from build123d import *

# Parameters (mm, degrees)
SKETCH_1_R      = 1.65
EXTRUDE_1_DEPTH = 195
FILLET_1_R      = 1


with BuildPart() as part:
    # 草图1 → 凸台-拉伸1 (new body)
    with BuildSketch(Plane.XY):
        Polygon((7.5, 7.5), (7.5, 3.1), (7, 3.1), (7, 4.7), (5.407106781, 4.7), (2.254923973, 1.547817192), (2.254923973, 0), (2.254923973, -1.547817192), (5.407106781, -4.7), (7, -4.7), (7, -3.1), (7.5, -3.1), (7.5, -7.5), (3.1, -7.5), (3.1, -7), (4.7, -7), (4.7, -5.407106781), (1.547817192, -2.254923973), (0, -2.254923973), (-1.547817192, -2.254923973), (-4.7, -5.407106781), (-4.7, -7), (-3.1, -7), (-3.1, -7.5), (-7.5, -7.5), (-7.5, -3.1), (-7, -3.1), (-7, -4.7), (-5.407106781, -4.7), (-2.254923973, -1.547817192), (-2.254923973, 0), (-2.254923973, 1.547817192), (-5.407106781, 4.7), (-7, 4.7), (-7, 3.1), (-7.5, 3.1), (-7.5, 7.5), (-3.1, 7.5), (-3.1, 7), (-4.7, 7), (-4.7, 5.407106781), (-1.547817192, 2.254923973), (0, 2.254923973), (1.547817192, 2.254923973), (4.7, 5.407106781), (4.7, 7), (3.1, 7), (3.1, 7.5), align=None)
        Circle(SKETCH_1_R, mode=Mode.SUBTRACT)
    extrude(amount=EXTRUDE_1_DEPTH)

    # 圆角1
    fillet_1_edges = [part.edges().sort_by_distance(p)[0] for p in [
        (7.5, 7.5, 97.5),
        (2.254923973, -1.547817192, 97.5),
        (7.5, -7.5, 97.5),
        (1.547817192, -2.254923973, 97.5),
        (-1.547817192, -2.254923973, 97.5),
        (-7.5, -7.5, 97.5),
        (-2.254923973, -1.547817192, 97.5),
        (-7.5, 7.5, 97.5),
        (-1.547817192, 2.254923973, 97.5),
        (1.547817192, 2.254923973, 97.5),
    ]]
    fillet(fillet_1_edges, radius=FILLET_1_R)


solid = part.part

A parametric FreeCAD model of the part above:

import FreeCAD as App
import Part
import Sketcher


def edges_at(feature, points):
    """Names of the edges that pass closest to the given points."""
    edges = feature.Shape.Edges
    near = lambda p: min(range(len(edges)), key=lambda i: edges[i].distToShape(Part.Vertex(*p))[0])
    return sorted({f"Edge{near(p) + 1}" for p in points})


def add_polygon(sketch, points):
    """Adds a closed chain of lines whose ends are joined by coincident constraints."""
    first, n = sketch.GeometryCount, len(points)
    for a, b in zip(points, points[1:] + points[:1]):
        sketch.addGeometry(Part.LineSegment(App.Vector(*a, 0), App.Vector(*b, 0)), False)
    for i in range(n):
        sketch.addConstraint(Sketcher.Constraint("Coincident", first + i, 2, first + (i + 1) % n, 1))

doc = App.newDocument("Part")
params = doc.addObject("Spreadsheet::Sheet", "Params")
for row, (alias, value) in enumerate([
    ("sketch1_diameter", "3.3 mm"),
    ("sketch1_width", "4.4 mm"),
    ("sketch1_width2", "1.6 mm"),
    ("sketch1_width3", "0.5 mm"),
    ("pad1_length", "195 mm"),
    ("fillet_radius", "1 mm"),
], start=1):
    params.set(f"A{row}", alias)
    params.set(f"B{row}", "=" + value)
    params.setAlias(f"B{row}", alias)

body = doc.addObject("PartDesign::Body", "Body")

sketch1 = body.newObject("Sketcher::SketchObject", "Sketch")
sketch1.AttachmentSupport = (doc.getObject("XY_Plane"), [""])
sketch1.MapMode = "FlatFace"
add_polygon(sketch1, [(7.5, 3.1), (7.5, 7.5), (3.1, 7.5), (3.1, 7), (4.7, 7), (4.7, 5.4), (1.5, 2.3), (-1.5, 2.3), (-4.7, 5.4), (-4.7, 7), (-3.1, 7), (-3.1, 7.5), (-7.5, 7.5), (-7.5, 3.1), (-7, 3.1), (-7, 4.7), (-5.4, 4.7), (-2.3, 1.5), (-2.3, -1.5), (-5.4, -4.7), (-7, -4.7), (-7, -3.1), (-7.5, -3.1), (-7.5, -7.5), (-3.1, -7.5), (-3.1, -7), (-4.7, -7), (-4.7, -5.4), (-1.5, -2.3), (1.5, -2.3), (4.7, -5.4), (4.7, -7), (3.1, -7), (3.1, -7.5), (7.5, -7.5), (7.5, -3.1), (7, -3.1), (7, -4.7), (5.4, -4.7), (2.3, -1.5), (2.3, 1.5), (5.4, 4.7), (7, 4.7), (7, 3.1)])
sketch1.addGeometry(Part.Circle(App.Vector(0, 0, 0), App.Vector(0, 0, 1), 1.6), False)
sketch1.addConstraint(Sketcher.Constraint("Vertical", 0))
sketch1.addConstraint(Sketcher.Constraint("Horizontal", 1))
sketch1.addConstraint(Sketcher.Constraint("Vertical", 2))
sketch1.addConstraint(Sketcher.Constraint("Horizontal", 3))
sketch1.addConstraint(Sketcher.Constraint("Vertical", 4))
sketch1.addConstraint(Sketcher.Constraint("Horizontal", 6))
sketch1.addConstraint(Sketcher.Constraint("Vertical", 8))
sketch1.addConstraint(Sketcher.Constraint("Horizontal", 9))
sketch1.addConstraint(Sketcher.Constraint("Vertical", 10))
sketch1.addConstraint(Sketcher.Constraint("Horizontal", 11))
sketch1.addConstraint(Sketcher.Constraint("Vertical", 12))
sketch1.addConstraint(Sketcher.Constraint("Horizontal", 13))
sketch1.addConstraint(Sketcher.Constraint("Vertical", 14))
sketch1.addConstraint(Sketcher.Constraint("Horizontal", 15))
sketch1.addConstraint(Sketcher.Constraint("Vertical", 17))
sketch1.addConstraint(Sketcher.Constraint("Horizontal", 19))
sketch1.addConstraint(Sketcher.Constraint("Vertical", 20))
sketch1.addConstraint(Sketcher.Constraint("Horizontal", 21))
sketch1.addConstraint(Sketcher.Constraint("Vertical", 22))
sketch1.addConstraint(Sketcher.Constraint("Horizontal", 23))
sketch1.addConstraint(Sketcher.Constraint("Vertical", 24))
sketch1.addConstraint(Sketcher.Constraint("Horizontal", 25))
sketch1.addConstraint(Sketcher.Constraint("Vertical", 26))
sketch1.addConstraint(Sketcher.Constraint("Horizontal", 28))
sketch1.addConstraint(Sketcher.Constraint("Vertical", 30))
sketch1.addConstraint(Sketcher.Constraint("Horizontal", 31))
sketch1.addConstraint(Sketcher.Constraint("Vertical", 32))
sketch1.addConstraint(Sketcher.Constraint("Horizontal", 33))
sketch1.addConstraint(Sketcher.Constraint("Vertical", 34))
sketch1.addConstraint(Sketcher.Constraint("Horizontal", 35))
sketch1.addConstraint(Sketcher.Constraint("Vertical", 36))
sketch1.addConstraint(Sketcher.Constraint("Horizontal", 37))
sketch1.addConstraint(Sketcher.Constraint("Vertical", 39))
sketch1.addConstraint(Sketcher.Constraint("Horizontal", 41))
sketch1.addConstraint(Sketcher.Constraint("Vertical", 42))
sketch1.addConstraint(Sketcher.Constraint("Horizontal", 43))
sketch1.addConstraint(Sketcher.Constraint("Coincident", 44, 3, -1, 1))
sketch1.addConstraint(Sketcher.Constraint("Symmetric", 0, 2, 22, 2, -1, 1))
sketch1.addConstraint(Sketcher.Constraint("Symmetric", 2, 2, 24, 2, -1, 1))
sketch1.addConstraint(Sketcher.Constraint("Symmetric", 4, 2, 26, 2, -1, 1))
sketch1.addConstraint(Sketcher.Constraint("Symmetric", 5, 2, 27, 2, -1, 1))
sketch1.addConstraint(Sketcher.Constraint("Symmetric", 7, 2, 29, 2, -1, 1))
sketch1.addConstraint(Sketcher.Constraint("Symmetric", 9, 2, 31, 2, -1, 1))
sketch1.addConstraint(Sketcher.Constraint("Symmetric", 11, 2, 33, 2, -1, 1))
sketch1.addConstraint(Sketcher.Constraint("Symmetric", 13, 2, 35, 2, -1, 1))
sketch1.addConstraint(Sketcher.Constraint("Symmetric", 15, 2, 37, 2, -1, 1))
sketch1.addConstraint(Sketcher.Constraint("Symmetric", 16, 2, 38, 2, -1, 1))
sketch1.addConstraint(Sketcher.Constraint("Symmetric", 18, 2, 40, 2, -1, 1))
sketch1.addConstraint(Sketcher.Constraint("Symmetric", 20, 2, 42, 2, -1, 1))
sketch1.addConstraint(Sketcher.Constraint("Symmetric", 4, 2, 7, 2, -2))
sketch1.addConstraint(Sketcher.Constraint("Symmetric", 2, 2, 9, 2, -2))
sketch1.addConstraint(Sketcher.Constraint("Symmetric", 0, 2, 11, 2, -2))
sketch1.addConstraint(Sketcher.Constraint("Symmetric", 20, 2, 35, 2, -2))
sketch1.addConstraint(Sketcher.Constraint("Symmetric", 18, 2, 37, 2, -2))
sketch1.addConstraint(Sketcher.Constraint("Perpendicular", 5, 7))
sketch1.addConstraint(Sketcher.Constraint("Parallel", 7, 16))
sketch1.addConstraint(Sketcher.Constraint("Perpendicular", 16, 18))
sketch1.addConstraint(Sketcher.Constraint("Perpendicular", 27, 29))
sketch1.addConstraint(Sketcher.Constraint("Perpendicular", 38, 40))
sketch1.addConstraint(Sketcher.Constraint("Horizontal", 17, 2, 38, 2))
sketch1.addConstraint(Sketcher.Constraint("Equal", 33, 0))
sketch1.addConstraint(Sketcher.Constraint("Equal", 43, 2))
sketch1.addConstraint(Sketcher.Constraint("Equal", 41, 4))
sketch1.addConstraint(Sketcher.Constraint("Equal", 31, 14))
sketch1.addConstraint(Sketcher.Constraint("Equal", 28, 17))
sketch1.addConstraint(Sketcher.Constraint("Equal", 7, 16))
sketch1.addConstraint(Sketcher.Constraint("Diameter", 44, 3.3))
sketch1.addConstraint(Sketcher.Constraint("DistanceX", 1, 2, 1, 1, 4.4))
sketch1.addConstraint(Sketcher.Constraint("DistanceX", 3, 1, 3, 2, 1.6))
sketch1.addConstraint(Sketcher.Constraint("DistanceX", 13, 1, 13, 2, 0.5))
sketch1.addConstraint(Sketcher.Constraint("DistanceY", -1, 1, 2, 2, 7.0))
sketch1.addConstraint(Sketcher.Constraint("Distance", 5, 4.45786))
sketch1.addConstraint(Sketcher.Constraint("DistanceX", 15, 1, 15, 2, 1.592893))
sketch1.setExpression("Constraints[110]", "Params.sketch1_diameter")
sketch1.setExpression("Constraints[111]", "Params.sketch1_width")
sketch1.setExpression("Constraints[112]", "Params.sketch1_width2")
sketch1.setExpression("Constraints[113]", "Params.sketch1_width3")
pad1 = body.newObject("PartDesign::Pad", "Pad")
pad1.Profile = sketch1
pad1.setExpression("Length", "Params.pad1_length")
doc.recompute()

fillet = body.newObject("PartDesign::Fillet", "Fillet")
fillet.Base = (pad1, edges_at(pad1, [
    (7.5, 7.5, 97.5),
    (2.255, -1.548, 97.5),
    (7.5, -7.5, 97.5),
    (1.548, -2.255, 97.5),
    (-1.548, -2.255, 97.5),
    (-7.5, -7.5, 97.5),
    (-2.255, -1.548, 97.5),
    (-7.5, 7.5, 97.5),
    (-1.548, 2.255, 97.5),
    (1.548, 2.255, 97.5),
]))
fillet.setExpression("Radius", "Params.fillet_radius")

doc.recompute()
